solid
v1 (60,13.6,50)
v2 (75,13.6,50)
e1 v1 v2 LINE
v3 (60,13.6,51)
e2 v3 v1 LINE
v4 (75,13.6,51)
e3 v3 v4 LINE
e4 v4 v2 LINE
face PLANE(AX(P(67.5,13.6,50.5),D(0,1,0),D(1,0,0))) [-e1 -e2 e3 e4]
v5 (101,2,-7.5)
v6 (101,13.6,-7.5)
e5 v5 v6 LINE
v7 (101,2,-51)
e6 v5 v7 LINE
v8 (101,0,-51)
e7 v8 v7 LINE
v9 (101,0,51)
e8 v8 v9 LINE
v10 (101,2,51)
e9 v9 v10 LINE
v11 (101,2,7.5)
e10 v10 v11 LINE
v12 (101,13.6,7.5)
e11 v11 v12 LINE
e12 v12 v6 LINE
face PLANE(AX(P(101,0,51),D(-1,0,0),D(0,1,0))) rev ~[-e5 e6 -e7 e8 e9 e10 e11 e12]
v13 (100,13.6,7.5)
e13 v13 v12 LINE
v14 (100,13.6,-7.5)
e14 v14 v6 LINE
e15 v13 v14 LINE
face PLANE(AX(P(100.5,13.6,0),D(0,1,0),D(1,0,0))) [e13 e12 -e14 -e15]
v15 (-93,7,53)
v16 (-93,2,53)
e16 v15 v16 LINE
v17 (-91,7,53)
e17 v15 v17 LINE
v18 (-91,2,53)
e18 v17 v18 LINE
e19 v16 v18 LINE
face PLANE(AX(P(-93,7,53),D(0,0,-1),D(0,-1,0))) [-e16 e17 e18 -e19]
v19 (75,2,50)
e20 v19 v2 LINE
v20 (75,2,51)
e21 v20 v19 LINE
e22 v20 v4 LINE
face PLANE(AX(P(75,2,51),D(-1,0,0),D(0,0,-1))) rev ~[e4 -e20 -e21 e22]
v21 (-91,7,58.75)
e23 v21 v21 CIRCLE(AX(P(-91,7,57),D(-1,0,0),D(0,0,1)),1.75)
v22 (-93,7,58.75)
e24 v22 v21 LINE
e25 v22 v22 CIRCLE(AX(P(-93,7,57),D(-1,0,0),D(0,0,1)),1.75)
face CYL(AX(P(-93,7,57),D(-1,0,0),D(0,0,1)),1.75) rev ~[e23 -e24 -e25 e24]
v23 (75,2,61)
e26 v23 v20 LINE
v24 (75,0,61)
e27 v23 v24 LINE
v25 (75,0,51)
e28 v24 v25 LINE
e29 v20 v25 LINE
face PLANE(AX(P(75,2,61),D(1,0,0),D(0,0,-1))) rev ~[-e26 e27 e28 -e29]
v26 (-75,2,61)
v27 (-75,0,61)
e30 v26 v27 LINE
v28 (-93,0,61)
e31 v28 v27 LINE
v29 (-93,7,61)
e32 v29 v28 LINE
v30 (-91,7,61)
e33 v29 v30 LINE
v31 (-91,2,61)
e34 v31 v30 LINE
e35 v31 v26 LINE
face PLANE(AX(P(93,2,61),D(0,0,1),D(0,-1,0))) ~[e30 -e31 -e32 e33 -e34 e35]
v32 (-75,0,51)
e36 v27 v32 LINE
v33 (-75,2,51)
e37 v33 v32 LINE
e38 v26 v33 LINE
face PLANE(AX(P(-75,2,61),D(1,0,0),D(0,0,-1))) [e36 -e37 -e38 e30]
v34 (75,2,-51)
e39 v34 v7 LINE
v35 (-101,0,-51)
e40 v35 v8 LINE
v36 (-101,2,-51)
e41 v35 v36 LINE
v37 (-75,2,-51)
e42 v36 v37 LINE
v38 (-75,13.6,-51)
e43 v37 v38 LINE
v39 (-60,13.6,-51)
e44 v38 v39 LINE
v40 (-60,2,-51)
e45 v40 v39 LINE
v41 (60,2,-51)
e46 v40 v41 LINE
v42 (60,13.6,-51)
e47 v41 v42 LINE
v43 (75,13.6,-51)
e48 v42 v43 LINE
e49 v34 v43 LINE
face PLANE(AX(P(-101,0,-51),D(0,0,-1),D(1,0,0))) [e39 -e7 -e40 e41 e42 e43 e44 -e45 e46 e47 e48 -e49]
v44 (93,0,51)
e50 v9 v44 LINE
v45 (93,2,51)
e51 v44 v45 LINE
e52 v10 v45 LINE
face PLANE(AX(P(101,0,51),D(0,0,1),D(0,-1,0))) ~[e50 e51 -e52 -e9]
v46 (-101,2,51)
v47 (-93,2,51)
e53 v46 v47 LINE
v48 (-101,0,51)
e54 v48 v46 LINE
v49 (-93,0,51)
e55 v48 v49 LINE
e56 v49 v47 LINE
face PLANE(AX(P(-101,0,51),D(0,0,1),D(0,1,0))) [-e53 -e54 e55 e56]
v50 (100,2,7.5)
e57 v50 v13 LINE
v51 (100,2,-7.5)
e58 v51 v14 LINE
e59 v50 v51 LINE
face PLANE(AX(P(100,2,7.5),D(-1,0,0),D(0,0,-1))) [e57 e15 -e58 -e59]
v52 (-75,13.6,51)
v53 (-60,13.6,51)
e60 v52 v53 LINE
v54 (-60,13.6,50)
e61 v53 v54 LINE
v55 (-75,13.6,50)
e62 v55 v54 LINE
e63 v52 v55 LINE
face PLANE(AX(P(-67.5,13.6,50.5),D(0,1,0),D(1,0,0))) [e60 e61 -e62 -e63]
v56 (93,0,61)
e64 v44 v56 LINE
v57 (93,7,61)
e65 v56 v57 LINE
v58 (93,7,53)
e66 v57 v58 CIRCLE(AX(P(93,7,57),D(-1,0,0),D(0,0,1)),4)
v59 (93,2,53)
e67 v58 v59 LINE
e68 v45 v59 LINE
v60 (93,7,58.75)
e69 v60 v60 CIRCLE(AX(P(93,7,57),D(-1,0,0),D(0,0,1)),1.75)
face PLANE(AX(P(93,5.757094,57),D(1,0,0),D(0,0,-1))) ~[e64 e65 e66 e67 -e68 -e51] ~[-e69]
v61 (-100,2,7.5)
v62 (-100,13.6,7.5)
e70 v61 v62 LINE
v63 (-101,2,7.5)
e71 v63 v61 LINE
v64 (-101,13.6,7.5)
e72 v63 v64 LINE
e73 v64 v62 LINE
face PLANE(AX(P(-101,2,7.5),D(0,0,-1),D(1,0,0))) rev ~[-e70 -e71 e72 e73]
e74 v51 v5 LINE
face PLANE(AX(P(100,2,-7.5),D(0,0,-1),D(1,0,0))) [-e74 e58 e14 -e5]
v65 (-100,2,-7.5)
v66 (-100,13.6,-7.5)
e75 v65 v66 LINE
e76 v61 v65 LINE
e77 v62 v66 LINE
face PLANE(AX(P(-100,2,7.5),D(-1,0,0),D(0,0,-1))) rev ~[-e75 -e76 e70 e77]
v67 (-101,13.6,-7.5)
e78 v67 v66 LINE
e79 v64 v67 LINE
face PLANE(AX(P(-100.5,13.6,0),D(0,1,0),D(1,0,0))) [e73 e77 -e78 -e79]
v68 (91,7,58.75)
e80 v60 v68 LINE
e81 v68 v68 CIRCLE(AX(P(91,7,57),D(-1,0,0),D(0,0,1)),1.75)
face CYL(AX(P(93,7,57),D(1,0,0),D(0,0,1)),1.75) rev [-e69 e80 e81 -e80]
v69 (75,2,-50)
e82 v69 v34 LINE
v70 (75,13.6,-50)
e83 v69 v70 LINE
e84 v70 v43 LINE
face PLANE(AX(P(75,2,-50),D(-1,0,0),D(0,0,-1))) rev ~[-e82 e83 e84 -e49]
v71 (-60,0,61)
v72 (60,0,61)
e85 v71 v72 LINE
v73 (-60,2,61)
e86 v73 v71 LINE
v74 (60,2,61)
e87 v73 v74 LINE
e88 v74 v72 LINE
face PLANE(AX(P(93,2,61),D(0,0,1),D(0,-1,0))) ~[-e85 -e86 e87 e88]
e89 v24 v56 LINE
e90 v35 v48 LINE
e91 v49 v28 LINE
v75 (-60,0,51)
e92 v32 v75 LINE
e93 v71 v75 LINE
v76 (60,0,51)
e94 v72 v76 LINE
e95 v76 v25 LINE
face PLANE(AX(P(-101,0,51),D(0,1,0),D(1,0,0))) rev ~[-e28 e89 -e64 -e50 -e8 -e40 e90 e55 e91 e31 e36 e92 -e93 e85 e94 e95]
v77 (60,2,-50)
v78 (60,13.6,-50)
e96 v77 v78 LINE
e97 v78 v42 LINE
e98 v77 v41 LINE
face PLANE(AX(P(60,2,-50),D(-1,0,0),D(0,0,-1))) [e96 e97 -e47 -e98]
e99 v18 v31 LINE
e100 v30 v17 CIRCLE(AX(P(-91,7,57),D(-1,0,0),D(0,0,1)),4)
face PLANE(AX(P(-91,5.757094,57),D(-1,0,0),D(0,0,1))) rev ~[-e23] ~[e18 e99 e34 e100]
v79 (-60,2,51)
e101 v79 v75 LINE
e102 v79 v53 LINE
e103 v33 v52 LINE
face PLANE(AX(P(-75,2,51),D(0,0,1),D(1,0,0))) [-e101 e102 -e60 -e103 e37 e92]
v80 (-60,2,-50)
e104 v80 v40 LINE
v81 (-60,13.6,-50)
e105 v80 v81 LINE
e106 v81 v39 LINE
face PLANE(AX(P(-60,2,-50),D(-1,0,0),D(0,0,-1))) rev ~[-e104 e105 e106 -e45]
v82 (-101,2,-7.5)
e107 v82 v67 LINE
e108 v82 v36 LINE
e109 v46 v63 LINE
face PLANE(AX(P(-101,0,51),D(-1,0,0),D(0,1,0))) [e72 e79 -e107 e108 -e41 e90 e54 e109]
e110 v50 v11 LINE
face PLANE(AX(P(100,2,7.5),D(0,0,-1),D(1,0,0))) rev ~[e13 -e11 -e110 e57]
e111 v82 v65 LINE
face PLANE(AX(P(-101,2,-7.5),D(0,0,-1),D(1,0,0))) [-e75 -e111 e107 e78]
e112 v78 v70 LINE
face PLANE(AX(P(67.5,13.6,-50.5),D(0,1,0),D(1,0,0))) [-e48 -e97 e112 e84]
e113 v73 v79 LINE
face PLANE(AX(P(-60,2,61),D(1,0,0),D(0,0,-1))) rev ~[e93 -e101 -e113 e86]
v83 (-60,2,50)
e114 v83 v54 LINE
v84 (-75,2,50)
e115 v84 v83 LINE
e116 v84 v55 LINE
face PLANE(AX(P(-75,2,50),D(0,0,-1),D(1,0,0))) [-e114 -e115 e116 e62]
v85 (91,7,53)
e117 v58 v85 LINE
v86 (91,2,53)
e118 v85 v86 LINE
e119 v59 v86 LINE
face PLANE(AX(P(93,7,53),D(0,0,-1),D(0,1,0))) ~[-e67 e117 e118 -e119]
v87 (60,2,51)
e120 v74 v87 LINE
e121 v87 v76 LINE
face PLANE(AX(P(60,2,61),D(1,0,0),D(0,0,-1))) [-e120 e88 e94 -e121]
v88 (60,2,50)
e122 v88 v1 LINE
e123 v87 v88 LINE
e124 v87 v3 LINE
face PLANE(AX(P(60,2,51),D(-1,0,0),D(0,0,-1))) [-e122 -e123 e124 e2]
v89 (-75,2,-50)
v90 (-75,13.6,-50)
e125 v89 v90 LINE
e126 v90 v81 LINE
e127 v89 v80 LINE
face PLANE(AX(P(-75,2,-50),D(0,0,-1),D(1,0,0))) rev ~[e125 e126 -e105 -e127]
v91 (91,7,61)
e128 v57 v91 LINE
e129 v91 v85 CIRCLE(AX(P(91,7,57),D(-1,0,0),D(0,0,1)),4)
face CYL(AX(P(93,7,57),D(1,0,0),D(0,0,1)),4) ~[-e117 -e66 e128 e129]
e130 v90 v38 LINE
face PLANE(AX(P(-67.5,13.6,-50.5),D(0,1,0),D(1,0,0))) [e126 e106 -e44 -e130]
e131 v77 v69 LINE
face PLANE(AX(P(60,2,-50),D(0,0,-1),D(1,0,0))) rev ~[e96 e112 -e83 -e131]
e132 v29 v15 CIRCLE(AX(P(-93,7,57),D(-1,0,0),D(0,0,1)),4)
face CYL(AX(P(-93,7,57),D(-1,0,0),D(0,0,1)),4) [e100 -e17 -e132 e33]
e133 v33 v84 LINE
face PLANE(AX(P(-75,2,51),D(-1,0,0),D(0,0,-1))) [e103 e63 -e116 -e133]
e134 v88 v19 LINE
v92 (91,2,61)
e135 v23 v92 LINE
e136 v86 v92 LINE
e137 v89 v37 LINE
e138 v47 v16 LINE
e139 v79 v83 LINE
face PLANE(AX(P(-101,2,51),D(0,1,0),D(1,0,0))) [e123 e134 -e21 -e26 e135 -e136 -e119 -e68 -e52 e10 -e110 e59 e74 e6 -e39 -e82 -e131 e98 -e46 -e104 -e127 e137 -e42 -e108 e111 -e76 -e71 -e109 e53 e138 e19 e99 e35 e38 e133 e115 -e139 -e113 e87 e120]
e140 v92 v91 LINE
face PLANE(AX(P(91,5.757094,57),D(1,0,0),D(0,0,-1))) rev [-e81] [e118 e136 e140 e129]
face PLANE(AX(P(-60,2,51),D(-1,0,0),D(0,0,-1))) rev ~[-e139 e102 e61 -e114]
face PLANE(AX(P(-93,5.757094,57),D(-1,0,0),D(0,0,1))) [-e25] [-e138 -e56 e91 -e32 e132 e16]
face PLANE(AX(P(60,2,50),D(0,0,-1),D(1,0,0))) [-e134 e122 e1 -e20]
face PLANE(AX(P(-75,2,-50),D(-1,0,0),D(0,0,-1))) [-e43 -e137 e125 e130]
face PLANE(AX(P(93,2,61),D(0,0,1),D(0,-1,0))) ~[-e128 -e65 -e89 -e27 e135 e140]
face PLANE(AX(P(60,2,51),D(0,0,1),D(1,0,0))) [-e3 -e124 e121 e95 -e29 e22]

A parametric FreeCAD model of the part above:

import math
import FreeCAD as App
import Part
import Sketcher
from FreeCAD import Vector

doc = App.newDocument("Part")
body = doc.addObject("PartDesign::Body", "Body")

sketch1 = body.newObject("Sketcher::SketchObject", "Sketch")
sketch1.AttachmentSupport = (doc.getObject("XZ_Plane"), [""])
sketch1.MapMode = "FlatFace"
sketch1.addGeometry([
    Part.LineSegment(Vector(-101, -51, 0), Vector(-101, 51, 0)),
    Part.LineSegment(Vector(-101, 51, 0), Vector(101, 51, 0)),
    Part.LineSegment(Vector(101, 51, 0), Vector(101, -51, 0)),
    Part.LineSegment(Vector(101, -51, 0), Vector(-101, -51, 0)),
], False)
sketch1.addConstraint([
    Sketcher.Constraint("Coincident", 0, 2, 1, 1),
    Sketcher.Constraint("Coincident", 1, 2, 2, 1),
    Sketcher.Constraint("Coincident", 2, 2, 3, 1),
    Sketcher.Constraint("Coincident", 3, 2, 0, 1),
    Sketcher.Constraint("Vertical", 0),
    Sketcher.Constraint("Horizontal", 1),
    Sketcher.Constraint("Vertical", 2),
    Sketcher.Constraint("Horizontal", 3),
    Sketcher.Constraint("Symmetric", 0, 2, 2, 2, -1, 1),
    Sketcher.Constraint("DistanceX", 1, 1, 1, 2, 202.0),
    Sketcher.Constraint("DistanceY", 0, 1, 0, 2, 102.0),
])
pad1 = body.newObject("PartDesign::Pad", "Pad")
pad1.Profile = sketch1
pad1.Length = 2
pad1.Reversed = True

sketch2 = body.newObject("Sketcher::SketchObject", "Sketch001")
sketch2.AttachmentSupport = (doc.getObject("XZ_Plane"), [""])
sketch2.MapMode = "FlatFace"
sketch2.AttachmentOffset = App.Placement(Vector(0, 0, -2), App.Rotation())
sketch2.addGeometry([
    Part.LineSegment(Vector(-75, -51, 0), Vector(-75, -50, 0)),
    Part.LineSegment(Vector(-75, -50, 0), Vector(-60, -50, 0)),
    Part.LineSegment(Vector(-60, -50, 0), Vector(-60, -51, 0)),
    Part.LineSegment(Vector(-60, -51, 0), Vector(-75, -51, 0)),
    Part.LineSegment(Vector(-75, 50, 0), Vector(-75, 51, 0)),
    Part.LineSegment(Vector(-75, 51, 0), Vector(-60, 51, 0)),
    Part.LineSegment(Vector(-60, 51, 0), Vector(-60, 50, 0)),
    Part.LineSegment(Vector(-60, 50, 0), Vector(-75, 50, 0)),
    Part.LineSegment(Vector(60, 50, 0), Vector(60, 51, 0)),
    Part.LineSegment(Vector(60, 51, 0), Vector(75, 51, 0)),
    Part.LineSegment(Vector(75, 51, 0), Vector(75, 50, 0)),
    Part.LineSegment(Vector(75, 50, 0), Vector(60, 50, 0)),
    Part.LineSegment(Vector(60, -51, 0), Vector(60, -50, 0)),
    Part.LineSegment(Vector(60, -50, 0), Vector(75, -50, 0)),
    Part.LineSegment(Vector(75, -50, 0), Vector(75, -51, 0)),
    Part.LineSegment(Vector(75, -51, 0), Vector(60, -51, 0)),
    Part.LineSegment(Vector(100, -7.5, 0), Vector(100, 7.5, 0)),
    Part.LineSegment(Vector(100, 7.5, 0), Vector(101, 7.5, 0)),
    Part.LineSegment(Vector(101, 7.5, 0), Vector(101, -7.5, 0)),
    Part.LineSegment(Vector(101, -7.5, 0), Vector(100, -7.5, 0)),
    Part.LineSegment(Vector(-101, -7.5, 0), Vector(-101, 7.5, 0)),
    Part.LineSegment(Vector(-101, 7.5, 0), Vector(-100, 7.5, 0)),
    Part.LineSegment(Vector(-100, 7.5, 0), Vector(-100, -7.5, 0)),
    Part.LineSegment(Vector(-100, -7.5, 0), Vector(-101, -7.5, 0)),
], False)
sketch2.addConstraint([
    Sketcher.Constraint("Coincident", 0, 2, 1, 1),
    Sketcher.Constraint("Coincident", 1, 2, 2, 1),
    Sketcher.Constraint("Coincident", 2, 2, 3, 1),
    Sketcher.Constraint("Coincident", 3, 2, 0, 1),
    Sketcher.Constraint("Coincident", 4, 2, 5, 1),
    Sketcher.Constraint("Coincident", 5, 2, 6, 1),
    Sketcher.Constraint("Coincident", 6, 2, 7, 1),
    Sketcher.Constraint("Coincident", 7, 2, 4, 1),
    Sketcher.Constraint("Coincident", 8, 2, 9, 1),
    Sketcher.Constraint("Coincident", 9, 2, 10, 1),
    Sketcher.Constraint("Coincident", 10, 2, 11, 1),
    Sketcher.Constraint("Coincident", 11, 2, 8, 1),
    Sketcher.Constraint("Coincident", 12, 2, 13, 1),
    Sketcher.Constraint("Coincident", 13, 2, 14, 1),
    Sketcher.Constraint("Coincident", 14, 2, 15, 1),
    Sketcher.Constraint("Coincident", 15, 2, 12, 1),
    Sketcher.Constraint("Coincident", 16, 2, 17, 1),
    Sketcher.Constraint("Coincident", 17, 2, 18, 1),
    Sketcher.Constraint("Coincident", 18, 2, 19, 1),
    Sketcher.Constraint("Coincident", 19, 2, 16, 1),
    Sketcher.Constraint("Coincident", 20, 2, 21, 1),
    Sketcher.Constraint("Coincident", 21, 2, 22, 1),
    Sketcher.Constraint("Coincident", 22, 2, 23, 1),
    Sketcher.Constraint("Coincident", 23, 2, 20, 1),
    Sketcher.Constraint("Vertical", 0),
    Sketcher.Constraint("Horizontal", 1),
    Sketcher.Constraint("Vertical", 2),
    Sketcher.Constraint("Horizontal", 3),
    Sketcher.Constraint("Vertical", 4),
    Sketcher.Constraint("Horizontal", 5),
    Sketcher.Constraint("Vertical", 6),
    Sketcher.Constraint("Horizontal", 7),
    Sketcher.Constraint("Vertical", 8),
    Sketcher.Constraint("Horizontal", 9),
    Sketcher.Constraint("Vertical", 10),
    Sketcher.Constraint("Horizontal", 11),
    Sketcher.Constraint("Vertical", 12),
    Sketcher.Constraint("Horizontal", 13),
    Sketcher.Constraint("Vertical", 14),
    Sketcher.Constraint("Horizontal", 15),
    Sketcher.Constraint("Vertical", 16),
    Sketcher.Constraint("Horizontal", 17),
    Sketcher.Constraint("Vertical", 18),
    Sketcher.Constraint("Horizontal", 19),
    Sketcher.Constraint("Vertical", 20),
    Sketcher.Constraint("Horizontal", 21),
    Sketcher.Constraint("Vertical", 22),
    Sketcher.Constraint("Horizontal", 23),
    Sketcher.Constraint("Symmetric", 2, 2, 8, 2, -1, 1),
    Sketcher.Constraint("Symmetric", 0, 2, 10, 2, -1, 1),
    Sketcher.Constraint("Symmetric", 6, 2, 12, 2, -1, 1),
    Sketcher.Constraint("Symmetric", 4, 2, 14, 2, -1, 1),
    Sketcher.Constraint("Symmetric", 18, 2, 20, 2, -1, 1),
    Sketcher.Constraint("Symmetric", 16, 2, 22, 2, -1, 1),
    Sketcher.Constraint("Symmetric", 5, 2, 8, 2, -2),
    Sketcher.Constraint("Symmetric", 7, 2, 10, 2, -2),
    Sketcher.Constraint("Horizontal", 17, 2, 20, 2),
    Sketcher.Constraint("Equal", 23, 0),
    Sketcher.Constraint("Equal", 15, 16),
    Sketcher.Constraint("DistanceX", 1, 1, 1, 2, 15.0),
    Sketcher.Constraint("DistanceX", 17, 1, 17, 2, 1.0),
    Sketcher.Constraint("DistanceX", 0, 2, -1, 1, 75.0),
    Sketcher.Constraint("DistanceY", 0, 2, -1, 1, 50.0),
    Sketcher.Constraint("DistanceX", -1, 1, 16, 2, 100.0),
])
pad2 = body.newObject("PartDesign::Pad", "Pad001")
pad2.Profile = sketch2
pad2.Length = 11.6
pad2.Reversed = True

sketch3 = body.newObject("Sketcher::SketchObject", "Sketch002")
sketch3.AttachmentSupport = (doc.getObject("XY_Plane"), [""])
sketch3.MapMode = "FlatFace"
sketch3.AttachmentOffset = App.Placement(Vector(0, 0, 51), App.Rotation())
sketch3.addGeometry([
    Part.LineSegment(Vector(-101, 2, 0), Vector(-101, 0, 0)),
    Part.LineSegment(Vector(-101, 0, 0), Vector(101, 0, 0)),
    Part.LineSegment(Vector(101, 0, 0), Vector(101, 2, 0)),
    Part.LineSegment(Vector(101, 2, 0), Vector(-101, 2, 0)),
], False)
sketch3.addConstraint([
    Sketcher.Constraint("Coincident", 0, 2, 1, 1),
    Sketcher.Constraint("Coincident", 1, 2, 2, 1),
    Sketcher.Constraint("Coincident", 2, 2, 3, 1),
    Sketcher.Constraint("Coincident", 3, 2, 0, 1),
    Sketcher.Constraint("Vertical", 0),
    Sketcher.Constraint("Horizontal", 1),
    Sketcher.Constraint("Vertical", 2),
    Sketcher.Constraint("Horizontal", 3),
    Sketcher.Constraint("Symmetric", 0, 2, 1, 2, -1, 1),
    Sketcher.Constraint("DistanceX", 1, 1, 1, 2, 202.0),
    Sketcher.Constraint("DistanceY", 0, 2, 0, 1, 2.0),
])
pad3 = body.newObject("PartDesign::Pad", "Pad002")
pad3.Profile = sketch3
pad3.Length = 10

sketch4 = body.newObject("Sketcher::SketchObject", "Sketch003")
sketch4.AttachmentSupport = (doc.getObject("YZ_Plane"), [""])
sketch4.MapMode = "FlatFace"
sketch4.AttachmentOffset = App.Placement(Vector(0, 0, -101), App.Rotation())
sketch4.addGeometry([
    Part.LineSegment(Vector(2, 51, 0), Vector(0, 51, 0)),
    Part.LineSegment(Vector(0, 51, 0), Vector(0, 61, 0)),
    Part.LineSegment(Vector(0, 61, 0), Vector(2, 61, 0)),
    Part.LineSegment(Vector(2, 61, 0), Vector(2, 51, 0)),
], False)
sketch4.addConstraint([
    Sketcher.Constraint("Coincident", 0, 2, 1, 1),
    Sketcher.Constraint("Coincident", 1, 2, 2, 1),
    Sketcher.Constraint("Coincident", 2, 2, 3, 1),
    Sketcher.Constraint("Coincident", 3, 2, 0, 1),
    Sketcher.Constraint("Horizontal", 0),
    Sketcher.Constraint("Vertical", 1),
    Sketcher.Constraint("Horizontal", 2),
    Sketcher.Constraint("Vertical", 3),
    Sketcher.Constraint("PointOnObject", 0, 2, -2),
    Sketcher.Constraint("DistanceX", 0, 2, 0, 1, 2.0),
    Sketcher.Constraint("DistanceY", 1, 1, 1, 2, 10.0),
    Sketcher.Constraint("DistanceY", -1, 1, 0, 2, 51.0),
])
pocket1 = body.newObject("PartDesign::Pocket", "Pocket")
pocket1.Profile = sketch4
pocket1.Length = 8
pocket1.Reversed = True
doc.recompute()

mirrored = body.newObject("PartDesign::Mirrored", "Mirrored")
mirrored.Originals = [pocket1]
mirrored.MirrorPlane = (doc.getObject("YZ_Plane"), [""])
body.Tip = mirrored

sketch5 = body.newObject("Sketcher::SketchObject", "Sketch004")
sketch5.AttachmentSupport = (doc.getObject("YZ_Plane"), [""])
sketch5.MapMode = "FlatFace"
sketch5.AttachmentOffset = App.Placement(Vector(0, 0, -93), App.Rotation())
sketch5.addGeometry([
    Part.LineSegment(Vector(2, 61, 0), Vector(7, 61, 0)),
    Part.ArcOfCircle(Part.Circle(Vector(7, 57, 0), Vector(0, 0, 1), 4), math.radians(-90), math.radians(90)),
    Part.LineSegment(Vector(7, 53, 0), Vector(2, 53, 0)),
    Part.LineSegment(Vector(2, 53, 0), Vector(2, 61, 0)),
    Part.Circle(Vector(7, 57, 0), Vector(0, 0, 1), 1.75),
], False)
sketch5.addConstraint([
    Sketcher.Constraint("Tangent", 0, 2, 1, 2),
    Sketcher.Constraint("Tangent", 1, 1, 2, 1),
    Sketcher.Constraint("Coincident", 2, 2, 3, 1),
    Sketcher.Constraint("Coincident", 3, 2, 0, 1),
    Sketcher.Constraint("Horizontal", 0),
    Sketcher.Constraint("Horizontal", 2),
    Sketcher.Constraint("Vertical", 3),
    Sketcher.Constraint("Coincident", 4, 3, 1, 3),
    Sketcher.Constraint("Radius", 1, 4.0),
    Sketcher.Constraint("Diameter", 4, 3.5),
    Sketcher.Constraint("DistanceX", 0, 1, 0, 2, 5.0),
    Sketcher.Constraint("DistanceX", -1, 1, 1, 3, 7.0),
    Sketcher.Constraint("DistanceY", -1, 1, 1, 3, 57.0),
])
pad4 = body.newObject("PartDesign::Pad", "Pad003")
pad4.Profile = sketch5
pad4.Length = 2
doc.recompute()

mirrored2 = body.newObject("PartDesign::Mirrored", "Mirrored001")
mirrored2.Originals = [pad4]
mirrored2.MirrorPlane = (doc.getObject("YZ_Plane"), [""])
body.Tip = mirrored2

sketch6 = body.newObject("Sketcher::SketchObject", "Sketch005")
sketch6.AttachmentSupport = (doc.getObject("XZ_Plane"), [""])
sketch6.MapMode = "FlatFace"
sketch6.AttachmentOffset = App.Placement(Vector(0, 0, -2), App.Rotation())
sketch6.addGeometry([
    Part.LineSegment(Vector(-75, 51, 0), Vector(-75, 61, 0)),
    Part.LineSegment(Vector(-75, 61, 0), Vector(-60, 61, 0)),
    Part.LineSegment(Vector(-60, 61, 0), Vector(-60, 51, 0)),
    Part.LineSegment(Vector(-60, 51, 0), Vector(-75, 51, 0)),
    Part.LineSegment(Vector(60, 51, 0), Vector(60, 61, 0)),
    Part.LineSegment(Vector(60, 61, 0), Vector(75, 61, 0)),
    Part.LineSegment(Vector(75, 61, 0), Vector(75, 51, 0)),
    Part.LineSegment(Vector(75, 51, 0), Vector(60, 51, 0)),
], False)
sketch6.addConstraint([
    Sketcher.Constraint("Coincident", 0, 2, 1, 1),
    Sketcher.Constraint("Coincident", 1, 2, 2, 1),
    Sketcher.Constraint("Coincident", 2, 2, 3, 1),
    Sketcher.Constraint("Coincident", 3, 2, 0, 1),
    Sketcher.Constraint("Coincident", 4, 2, 5, 1),
    Sketcher.Constraint("Coincident", 5, 2, 6, 1),
    Sketcher.Constraint("Coincident", 6, 2, 7, 1),
    Sketcher.Constraint("Coincident", 7, 2, 4, 1),
    Sketcher.Constraint("Vertical", 0),
    Sketcher.Constraint("Horizontal", 1),
    Sketcher.Constraint("Vertical", 2),
    Sketcher.Constraint("Horizontal", 3),
    Sketcher.Constraint("Vertical", 4),
    Sketcher.Constraint("Horizontal", 5),
    Sketcher.Constraint("Vertical", 6),
    Sketcher.Constraint("Horizontal", 7),
    Sketcher.Constraint("Symmetric", 1, 2, 4, 2, -2),
    Sketcher.Constraint("Symmetric", 3, 2, 6, 2, -2),
    Sketcher.Constraint("DistanceX", 1, 1, 1, 2, 15.0),
    Sketcher.Constraint("DistanceY", 0, 1, 0, 2, 10.0),
    Sketcher.Constraint("DistanceX", 0, 2, -1, 1, 75.0),
    Sketcher.Constraint("DistanceY", -1, 1, 0, 2, 61.0),
])
pocket2 = body.newObject("PartDesign::Pocket", "Pocket001")
pocket2.Profile = sketch6
pocket2.Type = "ThroughAll"
pocket2.Reversed = True

doc.recompute()
